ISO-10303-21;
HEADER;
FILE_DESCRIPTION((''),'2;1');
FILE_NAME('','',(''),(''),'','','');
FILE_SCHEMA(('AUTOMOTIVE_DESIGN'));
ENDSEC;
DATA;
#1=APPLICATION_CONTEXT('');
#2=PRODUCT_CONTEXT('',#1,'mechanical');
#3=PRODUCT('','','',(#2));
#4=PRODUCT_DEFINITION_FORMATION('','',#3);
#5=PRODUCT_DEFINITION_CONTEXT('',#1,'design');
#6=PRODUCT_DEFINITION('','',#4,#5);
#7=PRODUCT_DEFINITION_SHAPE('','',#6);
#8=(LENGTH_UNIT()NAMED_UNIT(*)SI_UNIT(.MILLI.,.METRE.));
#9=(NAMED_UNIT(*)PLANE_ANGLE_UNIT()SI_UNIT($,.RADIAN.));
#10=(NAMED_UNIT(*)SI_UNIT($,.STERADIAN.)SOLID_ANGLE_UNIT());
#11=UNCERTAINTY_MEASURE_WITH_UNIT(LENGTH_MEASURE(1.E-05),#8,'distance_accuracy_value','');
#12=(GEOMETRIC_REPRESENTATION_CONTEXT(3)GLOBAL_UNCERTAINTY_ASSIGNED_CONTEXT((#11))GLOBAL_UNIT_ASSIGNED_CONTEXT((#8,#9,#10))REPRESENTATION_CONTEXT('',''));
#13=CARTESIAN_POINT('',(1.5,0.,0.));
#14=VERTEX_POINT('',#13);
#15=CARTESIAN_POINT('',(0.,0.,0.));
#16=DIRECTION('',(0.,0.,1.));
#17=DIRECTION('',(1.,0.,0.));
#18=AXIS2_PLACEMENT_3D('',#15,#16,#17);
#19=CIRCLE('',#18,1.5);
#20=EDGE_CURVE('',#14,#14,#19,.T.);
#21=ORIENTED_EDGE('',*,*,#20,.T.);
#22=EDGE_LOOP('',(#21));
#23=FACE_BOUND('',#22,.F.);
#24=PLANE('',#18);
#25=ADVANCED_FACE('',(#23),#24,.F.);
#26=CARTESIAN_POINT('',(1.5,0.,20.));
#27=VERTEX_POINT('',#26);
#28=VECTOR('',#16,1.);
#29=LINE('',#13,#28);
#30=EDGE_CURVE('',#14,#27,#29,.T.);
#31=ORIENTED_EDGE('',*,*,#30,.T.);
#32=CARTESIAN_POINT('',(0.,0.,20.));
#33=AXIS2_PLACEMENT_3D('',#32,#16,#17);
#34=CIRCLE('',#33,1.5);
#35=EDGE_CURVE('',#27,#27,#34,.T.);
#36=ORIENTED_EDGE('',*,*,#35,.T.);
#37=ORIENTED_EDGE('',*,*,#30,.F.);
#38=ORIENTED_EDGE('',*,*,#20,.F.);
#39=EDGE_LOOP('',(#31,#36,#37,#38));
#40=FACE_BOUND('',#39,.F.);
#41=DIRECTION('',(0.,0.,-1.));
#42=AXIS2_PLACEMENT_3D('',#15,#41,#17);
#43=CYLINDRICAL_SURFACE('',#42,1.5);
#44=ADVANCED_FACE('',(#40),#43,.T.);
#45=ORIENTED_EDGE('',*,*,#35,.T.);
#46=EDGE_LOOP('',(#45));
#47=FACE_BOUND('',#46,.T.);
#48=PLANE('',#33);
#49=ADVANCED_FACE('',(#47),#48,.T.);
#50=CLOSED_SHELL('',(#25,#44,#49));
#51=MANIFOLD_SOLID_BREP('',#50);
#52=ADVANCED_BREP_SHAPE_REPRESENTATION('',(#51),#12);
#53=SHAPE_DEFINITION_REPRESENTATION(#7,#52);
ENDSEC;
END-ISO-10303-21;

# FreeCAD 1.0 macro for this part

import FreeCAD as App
import Part
import Sketcher

V = App.Vector

doc = App.newDocument("Part")
body = doc.addObject("PartDesign::Body", "Body")

# Sketch on XY plane
sketch1 = body.newObject("Sketcher::SketchObject", "Sketch")
sketch1.AttachmentSupport = (doc.getObject("XY_Plane"), [""])
sketch1.MapMode = "FlatFace"
sketch1.addGeometry(Part.Circle(V(0, 0, 0), V(0, 0, 1), 1.5), False)
sketch1.addConstraint([
    Sketcher.Constraint("Coincident", 0, 3, -1, 1),
    Sketcher.Constraint("Diameter", 0, 3.0),
])
pad1 = body.newObject("PartDesign::Pad", "Pad")
pad1.Profile = sketch1
pad1.Length = 20

doc.recompute()
